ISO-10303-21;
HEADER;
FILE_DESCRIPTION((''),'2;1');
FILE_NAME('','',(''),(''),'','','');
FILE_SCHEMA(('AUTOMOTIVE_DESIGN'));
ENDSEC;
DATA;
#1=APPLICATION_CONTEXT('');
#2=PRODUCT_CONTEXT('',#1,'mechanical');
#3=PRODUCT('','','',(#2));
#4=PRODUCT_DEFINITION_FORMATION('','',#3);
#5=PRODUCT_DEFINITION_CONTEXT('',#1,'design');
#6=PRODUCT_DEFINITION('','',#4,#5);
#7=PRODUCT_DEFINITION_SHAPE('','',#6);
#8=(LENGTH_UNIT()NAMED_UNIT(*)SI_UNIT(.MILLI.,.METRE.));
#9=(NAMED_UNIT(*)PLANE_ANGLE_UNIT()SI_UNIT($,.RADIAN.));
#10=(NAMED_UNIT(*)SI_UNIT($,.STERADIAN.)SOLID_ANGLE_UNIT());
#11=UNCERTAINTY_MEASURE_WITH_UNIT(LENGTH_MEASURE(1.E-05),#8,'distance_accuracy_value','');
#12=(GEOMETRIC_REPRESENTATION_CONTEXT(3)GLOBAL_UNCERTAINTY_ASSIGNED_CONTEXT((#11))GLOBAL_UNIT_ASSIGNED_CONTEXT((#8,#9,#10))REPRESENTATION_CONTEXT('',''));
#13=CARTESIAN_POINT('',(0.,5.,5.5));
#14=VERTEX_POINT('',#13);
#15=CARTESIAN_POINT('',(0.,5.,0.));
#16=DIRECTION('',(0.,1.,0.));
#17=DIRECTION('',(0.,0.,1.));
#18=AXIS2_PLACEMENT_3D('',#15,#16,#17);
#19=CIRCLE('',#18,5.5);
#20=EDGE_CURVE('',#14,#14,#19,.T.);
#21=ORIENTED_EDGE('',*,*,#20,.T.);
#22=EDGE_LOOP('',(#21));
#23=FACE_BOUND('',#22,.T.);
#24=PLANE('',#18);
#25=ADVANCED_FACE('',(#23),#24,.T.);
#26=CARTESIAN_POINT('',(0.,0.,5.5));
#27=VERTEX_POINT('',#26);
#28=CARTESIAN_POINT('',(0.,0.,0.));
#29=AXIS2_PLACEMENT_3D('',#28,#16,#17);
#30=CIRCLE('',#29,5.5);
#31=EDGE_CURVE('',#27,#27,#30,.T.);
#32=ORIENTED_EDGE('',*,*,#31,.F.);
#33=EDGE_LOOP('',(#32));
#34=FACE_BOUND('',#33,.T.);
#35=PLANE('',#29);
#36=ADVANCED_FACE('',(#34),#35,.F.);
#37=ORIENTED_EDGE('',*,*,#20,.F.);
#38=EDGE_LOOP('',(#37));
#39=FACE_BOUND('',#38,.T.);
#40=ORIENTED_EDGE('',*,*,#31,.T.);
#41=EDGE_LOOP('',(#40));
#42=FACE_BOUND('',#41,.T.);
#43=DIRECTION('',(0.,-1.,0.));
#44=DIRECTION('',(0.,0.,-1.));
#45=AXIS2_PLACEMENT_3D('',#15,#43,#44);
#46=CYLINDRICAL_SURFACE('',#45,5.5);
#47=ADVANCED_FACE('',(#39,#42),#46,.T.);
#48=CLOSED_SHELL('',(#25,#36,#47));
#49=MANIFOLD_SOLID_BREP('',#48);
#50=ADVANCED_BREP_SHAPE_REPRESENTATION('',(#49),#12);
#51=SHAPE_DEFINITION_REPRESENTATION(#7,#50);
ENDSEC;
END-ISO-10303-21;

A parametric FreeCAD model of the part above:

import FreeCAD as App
import Part
import Sketcher
Q = App.Units.Quantity

doc = App.newDocument("Part")
body = doc.addObject("PartDesign::Body", "Body")

# Sketch on XZ plane
sketch1 = body.newObject("Sketcher::SketchObject", "Sketch")
sketch1.AttachmentSupport = (doc.getObject("XZ_Plane"), [""])
sketch1.MapMode = "FlatFace"
sketch1.addGeometry(Part.Circle(App.Vector(0, 0, 0), App.Vector(0, 0, 1), 6), False)
sketch1.addConstraint([
    Sketcher.Constraint("Coincident", 0, 3, -1, 1),
    Sketcher.Constraint("Diameter", 0, Q("11 mm")),
])
pad1 = body.newObject("PartDesign::Pad", "Pad")
pad1.Profile = sketch1
pad1.Length = 5
pad1.Reversed = True

doc.recompute()
